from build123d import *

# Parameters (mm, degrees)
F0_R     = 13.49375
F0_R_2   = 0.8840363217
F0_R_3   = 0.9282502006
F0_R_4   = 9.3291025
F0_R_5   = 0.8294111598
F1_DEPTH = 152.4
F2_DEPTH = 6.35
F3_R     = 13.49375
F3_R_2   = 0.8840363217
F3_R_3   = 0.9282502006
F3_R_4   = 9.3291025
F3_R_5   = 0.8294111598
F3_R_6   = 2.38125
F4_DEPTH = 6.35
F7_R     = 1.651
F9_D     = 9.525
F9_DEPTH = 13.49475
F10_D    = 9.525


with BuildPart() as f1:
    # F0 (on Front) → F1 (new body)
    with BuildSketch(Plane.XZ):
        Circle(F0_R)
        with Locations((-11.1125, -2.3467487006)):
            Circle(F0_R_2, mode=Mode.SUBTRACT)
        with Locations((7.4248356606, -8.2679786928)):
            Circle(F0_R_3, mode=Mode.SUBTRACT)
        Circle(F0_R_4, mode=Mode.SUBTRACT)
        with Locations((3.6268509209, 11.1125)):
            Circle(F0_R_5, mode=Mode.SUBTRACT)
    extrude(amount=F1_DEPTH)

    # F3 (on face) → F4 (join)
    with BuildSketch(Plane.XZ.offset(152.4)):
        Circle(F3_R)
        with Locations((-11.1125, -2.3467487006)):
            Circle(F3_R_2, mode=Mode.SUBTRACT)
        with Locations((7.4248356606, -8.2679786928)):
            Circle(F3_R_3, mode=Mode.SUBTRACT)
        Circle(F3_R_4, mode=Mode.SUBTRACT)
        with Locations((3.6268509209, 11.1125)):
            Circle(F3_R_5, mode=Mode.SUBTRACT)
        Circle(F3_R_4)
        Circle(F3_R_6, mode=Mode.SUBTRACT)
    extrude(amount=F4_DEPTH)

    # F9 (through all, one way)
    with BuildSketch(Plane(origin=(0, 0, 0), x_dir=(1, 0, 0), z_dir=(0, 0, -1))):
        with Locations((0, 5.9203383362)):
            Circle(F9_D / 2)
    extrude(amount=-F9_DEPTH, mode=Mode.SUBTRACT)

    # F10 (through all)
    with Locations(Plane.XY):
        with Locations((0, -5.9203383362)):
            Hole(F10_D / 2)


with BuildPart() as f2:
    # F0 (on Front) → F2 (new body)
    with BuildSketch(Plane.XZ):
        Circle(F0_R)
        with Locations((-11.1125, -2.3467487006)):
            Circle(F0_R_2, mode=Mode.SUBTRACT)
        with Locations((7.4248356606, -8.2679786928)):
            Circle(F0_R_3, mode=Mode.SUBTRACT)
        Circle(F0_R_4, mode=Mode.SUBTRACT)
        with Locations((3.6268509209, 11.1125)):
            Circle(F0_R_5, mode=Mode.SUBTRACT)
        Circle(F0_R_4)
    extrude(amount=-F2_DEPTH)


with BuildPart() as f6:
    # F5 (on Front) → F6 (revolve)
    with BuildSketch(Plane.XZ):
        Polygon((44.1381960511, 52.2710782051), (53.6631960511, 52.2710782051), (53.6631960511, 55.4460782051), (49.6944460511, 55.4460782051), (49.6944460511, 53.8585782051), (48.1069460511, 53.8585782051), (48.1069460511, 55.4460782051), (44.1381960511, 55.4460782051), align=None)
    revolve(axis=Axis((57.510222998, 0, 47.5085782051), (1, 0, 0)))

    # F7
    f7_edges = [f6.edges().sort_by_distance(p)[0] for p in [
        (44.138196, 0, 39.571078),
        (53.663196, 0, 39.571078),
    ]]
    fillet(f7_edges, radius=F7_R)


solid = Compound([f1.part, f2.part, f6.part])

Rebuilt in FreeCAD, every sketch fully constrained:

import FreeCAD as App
import Part
import Sketcher
Q = App.Units.Quantity


def edges_at(feature, points):
    """Names of the edges that pass closest to the given points."""
    edges = feature.Shape.Edges
    near = lambda p: min(range(len(edges)), key=lambda i: edges[i].distToShape(Part.Vertex(*p))[0])
    return sorted({f"Edge{near(p) + 1}" for p in points})

doc = App.newDocument("Part")
body = doc.addObject("PartDesign::Body", "Body")

# Sketch on XZ plane
sketch1 = body.newObject("Sketcher::SketchObject", "Sketch")
sketch1.AttachmentSupport = (doc.getObject("XZ_Plane"), [""])
sketch1.MapMode = "FlatFace"
sketch1.addGeometry([
    Part.Circle(App.Vector(0, 0, 0), App.Vector(0, 0, 1), 13.5),  # 0
    Part.Circle(App.Vector(-11.1, -2.3, 0), App.Vector(0, 0, 1), 0.9),  # 1
    Part.Circle(App.Vector(7.4, -8.3, 0), App.Vector(0, 0, 1), 0.9),  # 2
    Part.Circle(App.Vector(0, 0, 0), App.Vector(0, 0, 1), 9.3),  # 3
    Part.Circle(App.Vector(3.6, 11.1, 0), App.Vector(0, 0, 1), 0.8),  # 4
], False)
sketch1.addConstraint([
    Sketcher.Constraint("Coincident", 0, 3, -1, 1),
    Sketcher.Constraint("Coincident", 3, 3, -1, 1),
    Sketcher.Constraint("Diameter", 0, Q("1.0625 in")),
    Sketcher.Constraint("Diameter", 2, Q("1.8565 mm")),
    Sketcher.Constraint("DistanceX", 1, 3, -1, 1, Q("0.4375 in")),
    Sketcher.Constraint("DistanceY", -1, 1, 4, 3, Q("0.4375 in")),
    Sketcher.Constraint("Diameter", 1, Q("1.768073 mm")),
    Sketcher.Constraint("Diameter", 3, Q("18.658205 mm")),
    Sketcher.Constraint("Diameter", 4, Q("1.658822 mm")),
    Sketcher.Constraint("DistanceY", 1, 3, -1, 1, Q("2.346749 mm")),
    Sketcher.Constraint("DistanceY", 2, 3, -1, 1, Q("8.267979 mm")),
    Sketcher.Constraint("DistanceX", -1, 1, 4, 3, Q("3.626851 mm")),
    Sketcher.Constraint("DistanceX", -1, 1, 2, 3, Q("7.424836 mm")),
])
pad1 = body.newObject("PartDesign::Pad", "Pad")
pad1.Profile = sketch1
pad1.Length = Q("6 in")

# Sketch on XZ plane
sketch2 = body.newObject("Sketcher::SketchObject", "Sketch001")
sketch2.AttachmentSupport = (doc.getObject("XZ_Plane"), [""])
sketch2.MapMode = "FlatFace"
sketch2.AttachmentOffset = App.Placement(App.Vector(0, 0, 6 * 25.4), App.Rotation())
sketch2.addGeometry([
    Part.Circle(App.Vector(0, 0, 0), App.Vector(0, 0, 1), 13.5),  # 0
    Part.Circle(App.Vector(-11.1, -2.3, 0), App.Vector(0, 0, 1), 0.9),  # 1
    Part.Circle(App.Vector(7.4, -8.3, 0), App.Vector(0, 0, 1), 0.9),  # 2
    Part.Circle(App.Vector(0, 0, 0), App.Vector(0, 0, 1), 2.4),  # 3
    Part.Circle(App.Vector(3.6, 11.1, 0), App.Vector(0, 0, 1), 0.8),  # 4
], False)
sketch2.addConstraint([
    Sketcher.Constraint("Coincident", 0, 3, -1, 1),
    Sketcher.Constraint("Coincident", 3, 3, -1, 1),
    Sketcher.Constraint("Diameter", 0, Q("1.0625 in")),
    Sketcher.Constraint("Diameter", 3, Q("0.1875 in")),
    Sketcher.Constraint("Diameter", 2, Q("1.8565 mm")),
    Sketcher.Constraint("DistanceX", 1, 3, -1, 1, Q("0.4375 in")),
    Sketcher.Constraint("DistanceY", -1, 1, 4, 3, Q("0.4375 in")),
    Sketcher.Constraint("Diameter", 1, Q("1.768073 mm")),
    Sketcher.Constraint("Diameter", 4, Q("1.658822 mm")),
    Sketcher.Constraint("DistanceY", 1, 3, -1, 1, Q("2.346749 mm")),
    Sketcher.Constraint("DistanceY", 2, 3, -1, 1, Q("8.267979 mm")),
    Sketcher.Constraint("DistanceX", -1, 1, 4, 3, Q("3.626851 mm")),
    Sketcher.Constraint("DistanceX", -1, 1, 2, 3, Q("7.424836 mm")),
])
pad2 = body.newObject("PartDesign::Pad", "Pad001")
pad2.Profile = sketch2
pad2.Length = Q("0.25 in")

# Sketch on XY plane
sketch3 = body.newObject("Sketcher::SketchObject", "Sketch002")
sketch3.AttachmentSupport = (doc.getObject("XY_Plane"), [""])
sketch3.MapMode = "FlatFace"
sketch3.addGeometry(Part.Circle(App.Vector(0, -5.9, 0), App.Vector(0, 0, 1), 4.8), False)
sketch3.addConstraint([
    Sketcher.Constraint("PointOnObject", 0, 3, -2),
    Sketcher.Constraint("Diameter", 0, Q("0.375 in")),
    Sketcher.Constraint("DistanceY", 0, 3, -1, 1, Q("5.920338 mm")),
])
pocket1 = body.newObject("PartDesign::Pocket", "Pocket")
pocket1.Profile = sketch3
pocket1.Type = "ThroughAll"
pocket1.Reversed = True

# Sketch on XY plane
sketch4 = body.newObject("Sketcher::SketchObject", "Sketch003")
sketch4.AttachmentSupport = (doc.getObject("XY_Plane"), [""])
sketch4.MapMode = "FlatFace"
sketch4.addGeometry(Part.Circle(App.Vector(0, -5.9, 0), App.Vector(0, 0, 1), 4.8), False)
sketch4.addConstraint([
    Sketcher.Constraint("PointOnObject", 0, 3, -2),
    Sketcher.Constraint("Diameter", 0, Q("0.375 in")),
    Sketcher.Constraint("DistanceY", 0, 3, -1, 1, Q("5.920338 mm")),
])
doc.recompute()
hole = body.newObject("PartDesign::Hole", "Hole")
hole.Profile = sketch4
hole.ThreadType = "None"
hole.Diameter = Q("0.375 in")
hole.DepthType = "ThroughAll"
body2 = doc.addObject("PartDesign::Body", "Body001")

# Sketch on XZ plane
sketch5 = body2.newObject("Sketcher::SketchObject", "Sketch004")
sketch5.AttachmentSupport = (doc.getObject("XZ_Plane001"), [""])
sketch5.MapMode = "FlatFace"
sketch5.addGeometry([
    Part.Circle(App.Vector(0, 0, 0), App.Vector(0, 0, 1), 13.5),
    Part.Circle(App.Vector(-11.1, -2.3, 0), App.Vector(0, 0, 1), 0.9),
    Part.Circle(App.Vector(7.4, -8.3, 0), App.Vector(0, 0, 1), 0.9),
    Part.Circle(App.Vector(3.6, 11.1, 0), App.Vector(0, 0, 1), 0.8),
], False)
sketch5.addConstraint([
    Sketcher.Constraint("Coincident", 0, 3, -1, 1),
    Sketcher.Constraint("Diameter", 0, Q("1.0625 in")),
    Sketcher.Constraint("Diameter", 2, Q("1.8565 mm")),
    Sketcher.Constraint("DistanceX", 1, 3, -1, 1, Q("0.4375 in")),
    Sketcher.Constraint("DistanceY", -1, 1, 3, 3, Q("0.4375 in")),
    Sketcher.Constraint("Diameter", 1, Q("1.768073 mm")),
    Sketcher.Constraint("Diameter", 3, Q("1.658822 mm")),
    Sketcher.Constraint("DistanceY", 1, 3, -1, 1, Q("2.346749 mm")),
    Sketcher.Constraint("DistanceY", 2, 3, -1, 1, Q("8.267979 mm")),
    Sketcher.Constraint("DistanceX", -1, 1, 3, 3, Q("3.626851 mm")),
    Sketcher.Constraint("DistanceX", -1, 1, 2, 3, Q("7.424836 mm")),
])
pad3 = body2.newObject("PartDesign::Pad", "Pad002")
pad3.Profile = sketch5
pad3.Length = Q("0.25 in")
pad3.Reversed = True
body3 = doc.addObject("PartDesign::Body", "Body002")

# Sketch on XZ plane
sketch6 = body3.newObject("Sketcher::SketchObject", "Sketch005")
sketch6.AttachmentSupport = (doc.getObject("XZ_Plane002"), [""])
sketch6.MapMode = "FlatFace"
sketch6.addGeometry([
    Part.LineSegment(App.Vector(44.1, 52.3, 0), App.Vector(53.7, 52.3, 0)),  # 0
    Part.LineSegment(App.Vector(53.7, 52.3, 0), App.Vector(53.7, 55.4, 0)),  # 1
    Part.LineSegment(App.Vector(53.7, 55.4, 0), App.Vector(49.7, 55.4, 0)),  # 2
    Part.LineSegment(App.Vector(49.7, 55.4, 0), App.Vector(49.7, 53.9, 0)),  # 3
    Part.LineSegment(App.Vector(49.7, 53.9, 0), App.Vector(48.1, 53.9, 0)),  # 4
    Part.LineSegment(App.Vector(48.1, 53.9, 0), App.Vector(48.1, 55.4, 0)),  # 5
    Part.LineSegment(App.Vector(48.1, 55.4, 0), App.Vector(44.1, 55.4, 0)),  # 6
    Part.LineSegment(App.Vector(44.1, 55.4, 0), App.Vector(44.1, 52.3, 0)),  # 7
], False)
sketch6.addGeometry(Part.LineSegment(App.Vector(44.1, 47.5, 0), App.Vector(53.7, 47.5, 0)), True)  # axis
sketch6.addConstraint([
    Sketcher.Constraint("Coincident", 0, 2, 1, 1),
    Sketcher.Constraint("Coincident", 1, 2, 2, 1),
    Sketcher.Constraint("Coincident", 2, 2, 3, 1),
    Sketcher.Constraint("Coincident", 3, 2, 4, 1),
    Sketcher.Constraint("Coincident", 4, 2, 5, 1),
    Sketcher.Constraint("Coincident", 5, 2, 6, 1),
    Sketcher.Constraint("Coincident", 6, 2, 7, 1),
    Sketcher.Constraint("Coincident", 7, 2, 0, 1),
    Sketcher.Constraint("Horizontal", 0),
    Sketcher.Constraint("Vertical", 1),
    Sketcher.Constraint("Horizontal", 2),
    Sketcher.Constraint("Vertical", 3),
    Sketcher.Constraint("Horizontal", 4),
    Sketcher.Constraint("Vertical", 5),
    Sketcher.Constraint("Horizontal", 6),
    Sketcher.Constraint("Vertical", 7),
    Sketcher.Constraint("Horizontal", 8),
    Sketcher.Constraint("Horizontal", 2, 2, 5, 2),
    Sketcher.Constraint("Vertical", 7, 2, 8, 1),
    Sketcher.Constraint("Vertical", 1, 2, 8, 2),
    Sketcher.Constraint("Equal", 2, 6),
    Sketcher.Constraint("Equal", 4, 3),
    Sketcher.Constraint("DistanceX", 0, 1, 0, 2, Q("0.375 in")),
    Sketcher.Constraint("DistanceX", 2, 2, 2, 1, Q("0.15625 in")),
    Sketcher.Constraint("DistanceY", 1, 1, 1, 2, Q("0.125 in")),
    Sketcher.Constraint("DistanceY", 8, 1, 4, 2, Q("0.25 in")),
    Sketcher.Constraint("DistanceY", -1, 1, 0, 2, Q("52.271078 mm")),
    Sketcher.Constraint("DistanceX", -1, 1, 0, 2, Q("53.663196 mm")),
])
revolution = body3.newObject("PartDesign::Revolution", "Revolution")
revolution.Profile = sketch6
revolution.ReferenceAxis = (sketch6, ["Axis0"])
revolution.Angle = 360
doc.recompute()

fillet = body3.newObject("PartDesign::Fillet", "Fillet")
fillet.Base = (revolution, edges_at(revolution, [(44.138, 0, 39.571), (53.663, 0, 39.571)]))
fillet.Radius = Q("0.065 in")

doc.recompute()
